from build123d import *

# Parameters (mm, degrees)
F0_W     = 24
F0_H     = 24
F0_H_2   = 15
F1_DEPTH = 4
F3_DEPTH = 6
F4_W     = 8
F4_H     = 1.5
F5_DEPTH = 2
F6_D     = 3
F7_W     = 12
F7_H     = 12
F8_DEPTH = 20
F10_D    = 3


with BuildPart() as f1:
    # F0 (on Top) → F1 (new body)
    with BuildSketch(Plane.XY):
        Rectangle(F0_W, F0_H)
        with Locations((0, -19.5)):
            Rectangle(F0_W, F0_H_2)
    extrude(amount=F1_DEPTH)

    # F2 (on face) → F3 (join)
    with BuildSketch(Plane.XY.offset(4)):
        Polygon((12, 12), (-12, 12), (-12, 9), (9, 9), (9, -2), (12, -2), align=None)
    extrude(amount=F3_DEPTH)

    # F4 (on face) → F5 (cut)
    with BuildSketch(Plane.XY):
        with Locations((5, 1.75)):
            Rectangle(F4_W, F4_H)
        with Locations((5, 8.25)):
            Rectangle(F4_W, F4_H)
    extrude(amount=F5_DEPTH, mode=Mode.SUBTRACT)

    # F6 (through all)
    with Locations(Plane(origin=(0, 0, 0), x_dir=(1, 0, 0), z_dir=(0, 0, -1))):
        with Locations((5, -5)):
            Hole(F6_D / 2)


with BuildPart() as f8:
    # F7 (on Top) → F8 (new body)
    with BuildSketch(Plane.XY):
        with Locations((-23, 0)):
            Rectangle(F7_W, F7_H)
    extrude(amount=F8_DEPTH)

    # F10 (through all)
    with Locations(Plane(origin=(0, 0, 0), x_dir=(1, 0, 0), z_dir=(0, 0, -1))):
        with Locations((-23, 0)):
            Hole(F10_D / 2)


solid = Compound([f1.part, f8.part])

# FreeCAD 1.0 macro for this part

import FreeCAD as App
import Part
import Sketcher

V = App.Vector
Q = App.Units.Quantity


def add_polygon(sketch, points):
    """Adds a closed chain of lines whose ends are joined by coincident constraints."""
    first, n = sketch.GeometryCount, len(points)
    for a, b in zip(points, points[1:] + points[:1]):
        sketch.addGeometry(Part.LineSegment(App.Vector(*a, 0), App.Vector(*b, 0)), False)
    for i in range(n):
        sketch.addConstraint(Sketcher.Constraint("Coincident", first + i, 2, first + (i + 1) % n, 1))

doc = App.newDocument("Part")
body = doc.addObject("PartDesign::Body", "Body")

sketch1 = doc.addObject("Sketcher::SketchObject", "Sketch")
body.addObject(sketch1)
sketch1.AttachmentSupport = (doc.XY_Plane, [""])
sketch1.MapMode = "FlatFace"
add_polygon(sketch1, [(-12, 12), (-12, -27), (12, -27), (12, 12)])
sketch1.addConstraint(Sketcher.Constraint("Vertical", 0))
sketch1.addConstraint(Sketcher.Constraint("Horizontal", 1))
sketch1.addConstraint(Sketcher.Constraint("Vertical", 2))
sketch1.addConstraint(Sketcher.Constraint("Horizontal", 3))
sketch1.addConstraint(Sketcher.Constraint("DistanceX", 1, 1, 1, 2, Q("24 mm")))
sketch1.addConstraint(Sketcher.Constraint("DistanceY", 0, 2, 0, 1, Q("39 mm")))
sketch1.addConstraint(Sketcher.Constraint("DistanceX", 0, 2, -1, 1, Q("12 mm")))
sketch1.addConstraint(Sketcher.Constraint("DistanceY", 0, 2, -1, 1, Q("27 mm")))
pad1 = doc.addObject("PartDesign::Pad", "Pad")
body.addObject(pad1)
pad1.Profile = sketch1
pad1.Length = 4

sketch2 = doc.addObject("Sketcher::SketchObject", "Sketch001")
body.addObject(sketch2)
sketch2.AttachmentSupport = (doc.XY_Plane, [""])
sketch2.MapMode = "FlatFace"
sketch2.AttachmentOffset = App.Placement(V(0, 0, 4), App.Rotation())
add_polygon(sketch2, [(12, 12), (-12, 12), (-12, 9), (9, 9), (9, -2), (12, -2)])
sketch2.addConstraint(Sketcher.Constraint("Horizontal", 0))
sketch2.addConstraint(Sketcher.Constraint("Vertical", 1))
sketch2.addConstraint(Sketcher.Constraint("Horizontal", 2))
sketch2.addConstraint(Sketcher.Constraint("Vertical", 3))
sketch2.addConstraint(Sketcher.Constraint("Horizontal", 4))
sketch2.addConstraint(Sketcher.Constraint("Vertical", 5))
sketch2.addConstraint(Sketcher.Constraint("Equal", 4, 1))
sketch2.addConstraint(Sketcher.Constraint("DistanceX", 0, 2, 0, 1, Q("24 mm")))
sketch2.addConstraint(Sketcher.Constraint("DistanceX", 2, 1, 2, 2, Q("21 mm")))
sketch2.addConstraint(Sketcher.Constraint("DistanceY", 3, 2, 3, 1, Q("11 mm")))
sketch2.addConstraint(Sketcher.Constraint("DistanceX", 0, 2, -1, 1, Q("12 mm")))
sketch2.addConstraint(Sketcher.Constraint("DistanceY", -1, 1, 0, 2, Q("12 mm")))
pad2 = doc.addObject("PartDesign::Pad", "Pad001")
body.addObject(pad2)
pad2.Profile = sketch2
pad2.Length = 6

sketch3 = doc.addObject("Sketcher::SketchObject", "Sketch002")
body.addObject(sketch3)
sketch3.AttachmentSupport = (doc.XY_Plane, [""])
sketch3.MapMode = "FlatFace"
add_polygon(sketch3, [(1, 2.5), (1, 1), (9, 1), (9, 2.5)])
add_polygon(sketch3, [(1, 9), (1, 7.5), (9, 7.5), (9, 9)])
sketch3.addConstraint(Sketcher.Constraint("Vertical", 0))
sketch3.addConstraint(Sketcher.Constraint("Horizontal", 1))
sketch3.addConstraint(Sketcher.Constraint("Vertical", 2))
sketch3.addConstraint(Sketcher.Constraint("Horizontal", 3))
sketch3.addConstraint(Sketcher.Constraint("Vertical", 4))
sketch3.addConstraint(Sketcher.Constraint("Horizontal", 5))
sketch3.addConstraint(Sketcher.Constraint("Vertical", 6))
sketch3.addConstraint(Sketcher.Constraint("Horizontal", 7))
sketch3.addConstraint(Sketcher.Constraint("Vertical", 3, 2, 4, 2))
sketch3.addConstraint(Sketcher.Constraint("Vertical", 2, 2, 5, 2))
sketch3.addConstraint(Sketcher.Constraint("Equal", 2, 4))
sketch3.addConstraint(Sketcher.Constraint("DistanceX", 1, 1, 1, 2, Q("8 mm")))
sketch3.addConstraint(Sketcher.Constraint("DistanceY", 0, 2, 0, 1, Q("1.5 mm")))
sketch3.addConstraint(Sketcher.Constraint("DistanceX", -1, 1, 0, 2, Q("1 mm")))
sketch3.addConstraint(Sketcher.Constraint("DistanceY", -1, 1, 0, 2, Q("1 mm")))
sketch3.addConstraint(Sketcher.Constraint("DistanceY", -1, 1, 6, 2, Q("9 mm")))
pocket1 = doc.addObject("PartDesign::Pocket", "Pocket")
body.addObject(pocket1)
pocket1.Profile = sketch3
pocket1.Length = 2
pocket1.Reversed = True

sketch4 = doc.addObject("Sketcher::SketchObject", "Sketch003")
body.addObject(sketch4)
sketch4.AttachmentSupport = (doc.XY_Plane, [""])
sketch4.MapMode = "FlatFace"
sketch4.addGeometry(Part.Circle(V(5, 5, 0), V(0, 0, 1), 1.5), False)
sketch4.addConstraint(Sketcher.Constraint("Diameter", 0, Q("3 mm")))
sketch4.addConstraint(Sketcher.Constraint("DistanceX", -1, 1, 0, 3, Q("5 mm")))
sketch4.addConstraint(Sketcher.Constraint("DistanceY", -1, 1, 0, 3, Q("5 mm")))
doc.recompute()
hole = doc.addObject("PartDesign::Hole", "Hole")
body.addObject(hole)
hole.Profile = sketch4
hole.ThreadType = "None"
hole.Diameter = 3
hole.DepthType = "ThroughAll"
hole.Reversed = True
body2 = doc.addObject("PartDesign::Body", "Body001")

sketch5 = doc.addObject("Sketcher::SketchObject", "Sketch004")
body2.addObject(sketch5)
sketch5.AttachmentSupport = (doc.getObject("XY_Plane001"), [""])
sketch5.MapMode = "FlatFace"
add_polygon(sketch5, [(-29, 6), (-29, -6), (-17, -6), (-17, 6)])
sketch5.addConstraint(Sketcher.Constraint("Vertical", 0))
sketch5.addConstraint(Sketcher.Constraint("Horizontal", 1))
sketch5.addConstraint(Sketcher.Constraint("Vertical", 2))
sketch5.addConstraint(Sketcher.Constraint("Horizontal", 3))
sketch5.addConstraint(Sketcher.Constraint("Equal", 3, 0))
sketch5.addConstraint(Sketcher.Constraint("DistanceX", 1, 1, 1, 2, Q("12 mm")))
sketch5.addConstraint(Sketcher.Constraint("DistanceX", 0, 2, -1, 1, Q("29 mm")))
sketch5.addConstraint(Sketcher.Constraint("DistanceY", 0, 2, -1, 1, Q("6 mm")))
pad3 = doc.addObject("PartDesign::Pad", "Pad002")
body2.addObject(pad3)
pad3.Profile = sketch5
pad3.Length = 20

sketch6 = doc.addObject("Sketcher::SketchObject", "Sketch005")
body2.addObject(sketch6)
sketch6.AttachmentSupport = (doc.getObject("XY_Plane001"), [""])
sketch6.MapMode = "FlatFace"
sketch6.addGeometry(Part.Circle(V(-23, 0, 0), V(0, 0, 1), 1.5), False)
sketch6.addConstraint(Sketcher.Constraint("PointOnObject", 0, 3, -1))
sketch6.addConstraint(Sketcher.Constraint("Diameter", 0, Q("3 mm")))
sketch6.addConstraint(Sketcher.Constraint("DistanceX", 0, 3, -1, 1, Q("23 mm")))
doc.recompute()
hole2 = doc.addObject("PartDesign::Hole", "Hole001")
body2.addObject(hole2)
hole2.Profile = sketch6
hole2.ThreadType = "None"
hole2.Diameter = 3
hole2.DepthType = "ThroughAll"
hole2.Reversed = True

doc.recompute()
